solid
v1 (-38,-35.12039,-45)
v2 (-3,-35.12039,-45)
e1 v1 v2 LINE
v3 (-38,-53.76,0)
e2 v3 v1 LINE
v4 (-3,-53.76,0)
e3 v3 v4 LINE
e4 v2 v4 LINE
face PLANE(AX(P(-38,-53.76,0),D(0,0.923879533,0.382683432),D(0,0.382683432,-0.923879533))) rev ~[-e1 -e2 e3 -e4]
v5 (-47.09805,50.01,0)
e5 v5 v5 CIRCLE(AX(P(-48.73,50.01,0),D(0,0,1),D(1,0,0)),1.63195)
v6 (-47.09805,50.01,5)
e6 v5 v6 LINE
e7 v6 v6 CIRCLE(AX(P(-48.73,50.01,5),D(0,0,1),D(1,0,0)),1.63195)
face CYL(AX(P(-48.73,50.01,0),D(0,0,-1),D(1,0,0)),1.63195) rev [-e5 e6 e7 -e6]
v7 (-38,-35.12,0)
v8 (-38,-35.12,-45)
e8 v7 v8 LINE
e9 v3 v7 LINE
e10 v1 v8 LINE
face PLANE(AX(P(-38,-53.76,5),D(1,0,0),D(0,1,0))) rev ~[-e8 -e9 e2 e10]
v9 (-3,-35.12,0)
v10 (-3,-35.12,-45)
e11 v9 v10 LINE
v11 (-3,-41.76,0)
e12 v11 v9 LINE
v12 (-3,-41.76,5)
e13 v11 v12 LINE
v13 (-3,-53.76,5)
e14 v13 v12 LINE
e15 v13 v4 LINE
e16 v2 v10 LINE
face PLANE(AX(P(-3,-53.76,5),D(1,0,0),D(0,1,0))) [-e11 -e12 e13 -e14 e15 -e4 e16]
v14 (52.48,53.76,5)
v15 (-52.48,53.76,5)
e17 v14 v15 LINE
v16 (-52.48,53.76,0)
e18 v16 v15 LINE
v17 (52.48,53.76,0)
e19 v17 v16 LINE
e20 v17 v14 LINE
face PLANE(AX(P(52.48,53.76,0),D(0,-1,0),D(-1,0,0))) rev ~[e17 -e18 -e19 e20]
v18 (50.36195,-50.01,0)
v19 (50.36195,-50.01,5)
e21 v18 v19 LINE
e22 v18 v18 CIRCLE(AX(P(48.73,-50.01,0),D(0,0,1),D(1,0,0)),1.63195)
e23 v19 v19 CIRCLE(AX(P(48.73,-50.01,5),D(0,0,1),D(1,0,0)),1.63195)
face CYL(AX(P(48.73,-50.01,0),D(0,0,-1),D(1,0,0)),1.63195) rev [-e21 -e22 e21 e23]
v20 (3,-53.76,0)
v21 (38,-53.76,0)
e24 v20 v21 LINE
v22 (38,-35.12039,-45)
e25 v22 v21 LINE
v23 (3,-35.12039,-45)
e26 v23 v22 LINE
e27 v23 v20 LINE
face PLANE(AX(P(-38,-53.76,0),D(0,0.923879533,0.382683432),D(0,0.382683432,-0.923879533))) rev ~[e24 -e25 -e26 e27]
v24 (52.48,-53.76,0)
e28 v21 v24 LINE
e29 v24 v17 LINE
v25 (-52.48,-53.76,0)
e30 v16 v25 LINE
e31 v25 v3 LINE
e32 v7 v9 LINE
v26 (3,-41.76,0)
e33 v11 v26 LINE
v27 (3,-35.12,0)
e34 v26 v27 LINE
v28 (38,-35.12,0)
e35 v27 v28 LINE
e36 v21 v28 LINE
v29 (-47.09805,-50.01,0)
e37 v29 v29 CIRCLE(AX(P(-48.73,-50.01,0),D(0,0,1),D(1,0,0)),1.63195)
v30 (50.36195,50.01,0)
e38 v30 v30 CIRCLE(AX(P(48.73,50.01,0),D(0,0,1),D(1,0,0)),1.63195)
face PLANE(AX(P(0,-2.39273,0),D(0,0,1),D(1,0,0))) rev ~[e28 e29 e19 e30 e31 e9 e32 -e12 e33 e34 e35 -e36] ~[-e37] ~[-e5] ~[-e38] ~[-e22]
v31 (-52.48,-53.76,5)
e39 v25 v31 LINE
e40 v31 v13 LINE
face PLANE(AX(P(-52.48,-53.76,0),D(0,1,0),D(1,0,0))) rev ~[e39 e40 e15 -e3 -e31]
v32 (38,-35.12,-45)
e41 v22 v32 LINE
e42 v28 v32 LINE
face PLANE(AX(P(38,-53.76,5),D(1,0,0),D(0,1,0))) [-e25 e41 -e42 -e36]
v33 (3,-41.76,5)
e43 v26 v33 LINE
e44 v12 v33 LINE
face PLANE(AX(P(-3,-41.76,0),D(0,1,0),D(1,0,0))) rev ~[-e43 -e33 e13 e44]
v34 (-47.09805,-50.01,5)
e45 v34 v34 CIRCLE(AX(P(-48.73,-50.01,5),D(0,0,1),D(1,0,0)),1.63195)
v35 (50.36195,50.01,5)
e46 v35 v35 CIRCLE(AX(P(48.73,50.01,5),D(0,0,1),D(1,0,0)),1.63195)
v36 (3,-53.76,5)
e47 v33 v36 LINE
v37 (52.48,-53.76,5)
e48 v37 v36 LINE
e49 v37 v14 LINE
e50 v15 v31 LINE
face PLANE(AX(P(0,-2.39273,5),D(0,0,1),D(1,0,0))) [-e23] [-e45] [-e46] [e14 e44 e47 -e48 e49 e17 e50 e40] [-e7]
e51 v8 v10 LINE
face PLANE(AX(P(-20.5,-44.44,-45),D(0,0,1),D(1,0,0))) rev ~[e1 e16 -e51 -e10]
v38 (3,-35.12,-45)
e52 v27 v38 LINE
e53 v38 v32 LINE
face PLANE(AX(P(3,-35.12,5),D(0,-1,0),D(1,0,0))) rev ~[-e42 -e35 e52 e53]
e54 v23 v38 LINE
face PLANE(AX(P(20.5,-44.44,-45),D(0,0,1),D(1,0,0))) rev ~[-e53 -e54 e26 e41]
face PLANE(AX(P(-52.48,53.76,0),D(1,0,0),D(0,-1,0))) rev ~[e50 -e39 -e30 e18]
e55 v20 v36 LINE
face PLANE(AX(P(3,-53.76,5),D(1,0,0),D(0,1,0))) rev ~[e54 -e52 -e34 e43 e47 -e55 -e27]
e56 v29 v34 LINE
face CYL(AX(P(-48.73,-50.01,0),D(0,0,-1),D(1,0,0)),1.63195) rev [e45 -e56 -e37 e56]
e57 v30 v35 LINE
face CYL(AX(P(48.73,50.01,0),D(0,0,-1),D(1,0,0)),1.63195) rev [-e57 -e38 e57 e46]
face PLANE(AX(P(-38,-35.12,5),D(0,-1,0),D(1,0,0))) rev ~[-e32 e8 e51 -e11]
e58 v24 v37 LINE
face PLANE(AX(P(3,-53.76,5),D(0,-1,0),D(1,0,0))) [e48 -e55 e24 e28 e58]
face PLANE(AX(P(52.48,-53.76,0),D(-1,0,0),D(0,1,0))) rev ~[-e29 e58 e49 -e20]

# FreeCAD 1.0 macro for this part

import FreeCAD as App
import Part
import Sketcher

V = App.Vector
Q = App.Units.Quantity


def add_polygon(sketch, points):
    """Adds a closed chain of lines whose ends are joined by coincident constraints."""
    first, n = sketch.GeometryCount, len(points)
    for a, b in zip(points, points[1:] + points[:1]):
        sketch.addGeometry(Part.LineSegment(App.Vector(*a, 0), App.Vector(*b, 0)), False)
    for i in range(n):
        sketch.addConstraint(Sketcher.Constraint("Coincident", first + i, 2, first + (i + 1) % n, 1))

doc = App.newDocument("Part")
params = doc.addObject("Spreadsheet::Sheet", "Params")
for row, (alias, value) in enumerate([
    ("sketch1_width", "6 mm"),
    ("sketch1_height", "12 mm"),
    ("sketch1_width2", "49.48 mm"),
    ("sketch1_height2", "107.52 mm"),
    ("pad1_length", "5 mm"),
    ("sketch2_width", "35 mm"),
    ("sketch2_height", "18.64 mm"),
    ("pad2_length", "50 mm"),
    ("sketch3_height", "45 mm"),
], start=1):
    params.set(f"A{row}", alias)
    params.set(f"B{row}", "=" + value)
    params.setAlias(f"B{row}", alias)

body = doc.addObject("PartDesign::Body", "Body")

# Sketch on XY plane
sketch1 = doc.addObject("Sketcher::SketchObject", "Sketch")
body.addObject(sketch1)
sketch1.AttachmentSupport = (doc.XY_Plane, [""])
sketch1.MapMode = "FlatFace"
add_polygon(sketch1, [(-52.5, 53.8), (-52.5, -53.8), (-3, -53.8), (-3, -41.8), (3, -41.8), (3, -53.8), (52.5, -53.8), (52.5, 53.8)])  # lines 0-7
sketch1.addGeometry(Part.Circle(V(-48.7, -50, 0), V(0, 0, 1), 1.6), False)  # 8
sketch1.addGeometry(Part.Circle(V(48.7, -50, 0), V(0, 0, 1), 1.6), False)  # 9
sketch1.addGeometry(Part.Circle(V(-48.7, 50, 0), V(0, 0, 1), 1.6), False)  # 10
sketch1.addGeometry(Part.Circle(V(48.7, 50, 0), V(0, 0, 1), 1.6), False)  # 11
sketch1.addConstraint([
    Sketcher.Constraint("Vertical", 0),
    Sketcher.Constraint("Horizontal", 1),
    Sketcher.Constraint("Vertical", 2),
    Sketcher.Constraint("Horizontal", 3),
    Sketcher.Constraint("Vertical", 4),
    Sketcher.Constraint("Horizontal", 5),
    Sketcher.Constraint("Vertical", 6),
    Sketcher.Constraint("Horizontal", 7),
    Sketcher.Constraint("Equal", 8, 9),
    Sketcher.Constraint("Equal", 9, 10),
    Sketcher.Constraint("Equal", 10, 11),
    Sketcher.Constraint("Symmetric", 9, 3, 10, 3, -1, 1),
    Sketcher.Constraint("Symmetric", 8, 3, 11, 3, -1, 1),
    Sketcher.Constraint("Symmetric", 0, 2, 6, 2, -1, 1),
    Sketcher.Constraint("Symmetric", 8, 3, 9, 3, -2),
    Sketcher.Constraint("Symmetric", 1, 2, 4, 2, -2),
    Sketcher.Constraint("DistanceX", 3, 1, 3, 2, 6.0),
    Sketcher.Constraint("DistanceY", 2, 1, 2, 2, 12.0),
    Sketcher.Constraint("Diameter", 8, 3.2639),
    Sketcher.Constraint("DistanceX", 1, 1, 1, 2, 49.48),
    Sketcher.Constraint("DistanceY", 0, 2, 0, 1, 107.52),
    Sketcher.Constraint("DistanceX", 8, 3, -1, 1, 48.73),
    Sketcher.Constraint("DistanceY", 8, 3, -1, 1, 50.01),
])
sketch1.setExpression("Constraints[24]", "Params.sketch1_width")
sketch1.setExpression("Constraints[25]", "Params.sketch1_height")
sketch1.setExpression("Constraints[27]", "Params.sketch1_width2")
sketch1.setExpression("Constraints[28]", "Params.sketch1_height2")
pad1 = doc.addObject("PartDesign::Pad", "Pad")
body.addObject(pad1)
pad1.Profile = sketch1
pad1.setExpression("Length", "Params.pad1_length")

# Sketch on XY plane
sketch2 = doc.addObject("Sketcher::SketchObject", "Sketch001")
body.addObject(sketch2)
sketch2.AttachmentSupport = (doc.XY_Plane, [""])
sketch2.MapMode = "FlatFace"
sketch2.AttachmentOffset = App.Placement(V(0, 0, 5), App.Rotation())
add_polygon(sketch2, [(3, -35), (3, -54), (38, -54), (38, -35)])  # lines 0-3
add_polygon(sketch2, [(-38, -35), (-38, -54), (-3, -54), (-3, -35)])  # lines 4-7
sketch2.addConstraint([
    Sketcher.Constraint("Vertical", 0),
    Sketcher.Constraint("Horizontal", 1),
    Sketcher.Constraint("Vertical", 2),
    Sketcher.Constraint("Horizontal", 3),
    Sketcher.Constraint("Vertical", 4),
    Sketcher.Constraint("Horizontal", 5),
    Sketcher.Constraint("Vertical", 6),
    Sketcher.Constraint("Horizontal", 7),
    Sketcher.Constraint("Symmetric", 1, 2, 4, 2, -2),
    Sketcher.Constraint("Symmetric", 3, 2, 6, 2, -2),
    Sketcher.Constraint("DistanceX", 1, 1, 1, 2, 35.0),
    Sketcher.Constraint("DistanceX", -1, 1, 0, 2, 3.0),
    Sketcher.Constraint("DistanceY", 0, 2, 0, 1, 18.64),
    Sketcher.Constraint("DistanceY", 0, 2, -1, 1, 53.76),
])
sketch2.setExpression("Constraints[18]", "Params.sketch2_width")
sketch2.setExpression("Constraints[20]", "Params.sketch2_height")
pad2 = doc.addObject("PartDesign::Pad", "Pad001")
body.addObject(pad2)
pad2.Profile = sketch2
pad2.setExpression("Length", "Params.pad2_length")
pad2.Reversed = True

# Sketch on YZ plane
sketch3 = doc.addObject("Sketcher::SketchObject", "Sketch002")
body.addObject(sketch3)
sketch3.AttachmentSupport = (doc.YZ_Plane, [""])
sketch3.MapMode = "FlatFace"
sketch3.AttachmentOffset = App.Placement(V(0, 0, -38), App.Rotation())
add_polygon(sketch3, [(-54, -45), (-54, 0), (-35, -45)])  # lines 0-2
sketch3.addConstraint([
    Sketcher.Constraint("Vertical", 0),
    Sketcher.Constraint("Horizontal", 2),
    Sketcher.Constraint("PointOnObject", 0, 2, -1),
    Sketcher.Constraint("DistanceY", 0, 1, 0, 2, 45.0),
    Sketcher.Constraint("Angle", 1, Q("-67.5 deg")),
    Sketcher.Constraint("DistanceX", 0, 2, -1, 1, 53.76),
])
sketch3.setExpression("Constraints[6]", "Params.sketch3_height")
pocket1 = doc.addObject("PartDesign::Pocket", "Pocket")
body.addObject(pocket1)
pocket1.Profile = sketch3
pocket1.Type = "ThroughAll"
pocket1.Reversed = True

doc.recompute()
